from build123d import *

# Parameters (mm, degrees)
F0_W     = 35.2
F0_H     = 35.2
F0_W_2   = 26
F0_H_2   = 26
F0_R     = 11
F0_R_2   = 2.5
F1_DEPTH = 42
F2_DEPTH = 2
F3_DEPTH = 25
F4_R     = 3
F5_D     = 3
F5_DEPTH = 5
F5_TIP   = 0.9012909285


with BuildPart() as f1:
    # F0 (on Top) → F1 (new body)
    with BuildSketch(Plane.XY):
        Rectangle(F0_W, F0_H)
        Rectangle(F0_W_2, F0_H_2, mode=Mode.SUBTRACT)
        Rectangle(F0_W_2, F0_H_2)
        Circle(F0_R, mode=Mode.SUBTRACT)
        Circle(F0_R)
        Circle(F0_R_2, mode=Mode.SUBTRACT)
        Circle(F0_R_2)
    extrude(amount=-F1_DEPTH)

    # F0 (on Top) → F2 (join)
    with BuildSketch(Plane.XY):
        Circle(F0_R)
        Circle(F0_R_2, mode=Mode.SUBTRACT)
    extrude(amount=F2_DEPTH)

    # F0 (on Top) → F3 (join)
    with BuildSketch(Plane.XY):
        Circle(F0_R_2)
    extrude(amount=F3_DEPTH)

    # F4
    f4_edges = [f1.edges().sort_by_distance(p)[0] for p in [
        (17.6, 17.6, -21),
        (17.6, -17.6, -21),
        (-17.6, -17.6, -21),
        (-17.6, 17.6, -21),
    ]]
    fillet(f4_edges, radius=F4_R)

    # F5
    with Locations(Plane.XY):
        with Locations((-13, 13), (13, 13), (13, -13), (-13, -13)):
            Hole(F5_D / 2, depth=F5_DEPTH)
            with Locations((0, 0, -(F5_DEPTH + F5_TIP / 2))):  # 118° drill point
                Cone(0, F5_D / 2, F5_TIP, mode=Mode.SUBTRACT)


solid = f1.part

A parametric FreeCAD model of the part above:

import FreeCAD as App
import Part
import Sketcher
from FreeCAD import Vector
Q = App.Units.Quantity


def edges_at(feature, points):
    """Names of the edges that pass closest to the given points."""
    edges = feature.Shape.Edges
    near = lambda p: min(range(len(edges)), key=lambda i: edges[i].distToShape(Part.Vertex(*p))[0])
    return sorted({f"Edge{near(p) + 1}" for p in points})


def add_polygon(sketch, points):
    """Adds a closed chain of lines whose ends are joined by coincident constraints."""
    first, n = sketch.GeometryCount, len(points)
    for a, b in zip(points, points[1:] + points[:1]):
        sketch.addGeometry(Part.LineSegment(App.Vector(*a, 0), App.Vector(*b, 0)), False)
    for i in range(n):
        sketch.addConstraint(Sketcher.Constraint("Coincident", first + i, 2, first + (i + 1) % n, 1))

doc = App.newDocument("Part")
body = doc.addObject("PartDesign::Body", "Body")

# Sketch on XY plane
sketch1 = body.newObject("Sketcher::SketchObject", "Sketch")
sketch1.AttachmentSupport = (doc.getObject("XY_Plane"), [""])
sketch1.MapMode = "FlatFace"
add_polygon(sketch1, [(-18, 18), (-18, -18), (18, -18), (18, 18)])  # lines 0-3
sketch1.addConstraint(Sketcher.Constraint("Vertical", 0))
sketch1.addConstraint(Sketcher.Constraint("Horizontal", 1))
sketch1.addConstraint(Sketcher.Constraint("Vertical", 2))
sketch1.addConstraint(Sketcher.Constraint("Horizontal", 3))
sketch1.addConstraint(Sketcher.Constraint("Symmetric", 0, 2, 2, 2, -1, 1))
sketch1.addConstraint(Sketcher.Constraint("Equal", 3, 0))
sketch1.addConstraint(Sketcher.Constraint("DistanceX", 1, 1, 1, 2, Q("35.2 mm")))
pad1 = body.newObject("PartDesign::Pad", "Pad")
pad1.Profile = sketch1
pad1.Length = 42
pad1.Reversed = True

# Sketch on XY plane
sketch2 = body.newObject("Sketcher::SketchObject", "Sketch001")
sketch2.AttachmentSupport = (doc.getObject("XY_Plane"), [""])
sketch2.MapMode = "FlatFace"
sketch2.addGeometry(Part.Circle(Vector(0, 0, 0), Vector(0, 0, 1), 11), False)
sketch2.addGeometry(Part.Circle(Vector(0, 0, 0), Vector(0, 0, 1), 2.5), False)
sketch2.addConstraint(Sketcher.Constraint("Coincident", 0, 3, -1, 1))
sketch2.addConstraint(Sketcher.Constraint("Coincident", 1, 3, -1, 1))
sketch2.addConstraint(Sketcher.Constraint("Diameter", 0, Q("22 mm")))
sketch2.addConstraint(Sketcher.Constraint("Diameter", 1, Q("5 mm")))
pad2 = body.newObject("PartDesign::Pad", "Pad001")
pad2.Profile = sketch2
pad2.Length = 2

# Sketch on XY plane
sketch3 = body.newObject("Sketcher::SketchObject", "Sketch002")
sketch3.AttachmentSupport = (doc.getObject("XY_Plane"), [""])
sketch3.MapMode = "FlatFace"
sketch3.addGeometry(Part.Circle(Vector(0, 0, 0), Vector(0, 0, 1), 2.5), False)
sketch3.addConstraint(Sketcher.Constraint("Coincident", 0, 3, -1, 1))
sketch3.addConstraint(Sketcher.Constraint("Diameter", 0, Q("5 mm")))
pad3 = body.newObject("PartDesign::Pad", "Pad002")
pad3.Profile = sketch3
pad3.Length = 25
doc.recompute()

fillet = body.newObject("PartDesign::Fillet", "Fillet")
fillet.Base = (pad3, edges_at(pad3, [
    (17.6, 17.6, -21),
    (17.6, -17.6, -21),
    (-17.6, -17.6, -21),
    (-17.6, 17.6, -21),
]))
fillet.Radius = 3

# Sketch on XY plane
sketch4 = body.newObject("Sketcher::SketchObject", "Sketch003")
sketch4.AttachmentSupport = (doc.getObject("XY_Plane"), [""])
sketch4.MapMode = "FlatFace"
sketch4.addGeometry(Part.Circle(Vector(-13, 13, 0), Vector(0, 0, 1), 1.5), False)
sketch4.addGeometry(Part.Circle(Vector(13, 13, 0), Vector(0, 0, 1), 1.5), False)
sketch4.addGeometry(Part.Circle(Vector(13, -13, 0), Vector(0, 0, 1), 1.5), False)
sketch4.addGeometry(Part.Circle(Vector(-13, -13, 0), Vector(0, 0, 1), 1.5), False)
sketch4.addConstraint(Sketcher.Constraint("Equal", 0, 1))
sketch4.addConstraint(Sketcher.Constraint("Equal", 1, 2))
sketch4.addConstraint(Sketcher.Constraint("Equal", 2, 3))
sketch4.addConstraint(Sketcher.Constraint("Symmetric", 0, 3, 2, 3, -1, 1))
sketch4.addConstraint(Sketcher.Constraint("Symmetric", 1, 3, 3, 3, -1, 1))
sketch4.addConstraint(Sketcher.Constraint("Symmetric", 0, 3, 1, 3, -2))
sketch4.addConstraint(Sketcher.Constraint("Diameter", 0, Q("3 mm")))
sketch4.addConstraint(Sketcher.Constraint("DistanceX", 0, 3, -1, 1, Q("13 mm")))
sketch4.addConstraint(Sketcher.Constraint("DistanceY", -1, 1, 0, 3, Q("13 mm")))
doc.recompute()
hole = body.newObject("PartDesign::Hole", "Hole")
hole.Profile = sketch4
hole.ThreadType = "None"
hole.Diameter = 3
hole.DepthType = "Dimension"
hole.Depth = 5
hole.DrillPoint = "Angled"
hole.DrillPointAngle = 118

doc.recompute()
